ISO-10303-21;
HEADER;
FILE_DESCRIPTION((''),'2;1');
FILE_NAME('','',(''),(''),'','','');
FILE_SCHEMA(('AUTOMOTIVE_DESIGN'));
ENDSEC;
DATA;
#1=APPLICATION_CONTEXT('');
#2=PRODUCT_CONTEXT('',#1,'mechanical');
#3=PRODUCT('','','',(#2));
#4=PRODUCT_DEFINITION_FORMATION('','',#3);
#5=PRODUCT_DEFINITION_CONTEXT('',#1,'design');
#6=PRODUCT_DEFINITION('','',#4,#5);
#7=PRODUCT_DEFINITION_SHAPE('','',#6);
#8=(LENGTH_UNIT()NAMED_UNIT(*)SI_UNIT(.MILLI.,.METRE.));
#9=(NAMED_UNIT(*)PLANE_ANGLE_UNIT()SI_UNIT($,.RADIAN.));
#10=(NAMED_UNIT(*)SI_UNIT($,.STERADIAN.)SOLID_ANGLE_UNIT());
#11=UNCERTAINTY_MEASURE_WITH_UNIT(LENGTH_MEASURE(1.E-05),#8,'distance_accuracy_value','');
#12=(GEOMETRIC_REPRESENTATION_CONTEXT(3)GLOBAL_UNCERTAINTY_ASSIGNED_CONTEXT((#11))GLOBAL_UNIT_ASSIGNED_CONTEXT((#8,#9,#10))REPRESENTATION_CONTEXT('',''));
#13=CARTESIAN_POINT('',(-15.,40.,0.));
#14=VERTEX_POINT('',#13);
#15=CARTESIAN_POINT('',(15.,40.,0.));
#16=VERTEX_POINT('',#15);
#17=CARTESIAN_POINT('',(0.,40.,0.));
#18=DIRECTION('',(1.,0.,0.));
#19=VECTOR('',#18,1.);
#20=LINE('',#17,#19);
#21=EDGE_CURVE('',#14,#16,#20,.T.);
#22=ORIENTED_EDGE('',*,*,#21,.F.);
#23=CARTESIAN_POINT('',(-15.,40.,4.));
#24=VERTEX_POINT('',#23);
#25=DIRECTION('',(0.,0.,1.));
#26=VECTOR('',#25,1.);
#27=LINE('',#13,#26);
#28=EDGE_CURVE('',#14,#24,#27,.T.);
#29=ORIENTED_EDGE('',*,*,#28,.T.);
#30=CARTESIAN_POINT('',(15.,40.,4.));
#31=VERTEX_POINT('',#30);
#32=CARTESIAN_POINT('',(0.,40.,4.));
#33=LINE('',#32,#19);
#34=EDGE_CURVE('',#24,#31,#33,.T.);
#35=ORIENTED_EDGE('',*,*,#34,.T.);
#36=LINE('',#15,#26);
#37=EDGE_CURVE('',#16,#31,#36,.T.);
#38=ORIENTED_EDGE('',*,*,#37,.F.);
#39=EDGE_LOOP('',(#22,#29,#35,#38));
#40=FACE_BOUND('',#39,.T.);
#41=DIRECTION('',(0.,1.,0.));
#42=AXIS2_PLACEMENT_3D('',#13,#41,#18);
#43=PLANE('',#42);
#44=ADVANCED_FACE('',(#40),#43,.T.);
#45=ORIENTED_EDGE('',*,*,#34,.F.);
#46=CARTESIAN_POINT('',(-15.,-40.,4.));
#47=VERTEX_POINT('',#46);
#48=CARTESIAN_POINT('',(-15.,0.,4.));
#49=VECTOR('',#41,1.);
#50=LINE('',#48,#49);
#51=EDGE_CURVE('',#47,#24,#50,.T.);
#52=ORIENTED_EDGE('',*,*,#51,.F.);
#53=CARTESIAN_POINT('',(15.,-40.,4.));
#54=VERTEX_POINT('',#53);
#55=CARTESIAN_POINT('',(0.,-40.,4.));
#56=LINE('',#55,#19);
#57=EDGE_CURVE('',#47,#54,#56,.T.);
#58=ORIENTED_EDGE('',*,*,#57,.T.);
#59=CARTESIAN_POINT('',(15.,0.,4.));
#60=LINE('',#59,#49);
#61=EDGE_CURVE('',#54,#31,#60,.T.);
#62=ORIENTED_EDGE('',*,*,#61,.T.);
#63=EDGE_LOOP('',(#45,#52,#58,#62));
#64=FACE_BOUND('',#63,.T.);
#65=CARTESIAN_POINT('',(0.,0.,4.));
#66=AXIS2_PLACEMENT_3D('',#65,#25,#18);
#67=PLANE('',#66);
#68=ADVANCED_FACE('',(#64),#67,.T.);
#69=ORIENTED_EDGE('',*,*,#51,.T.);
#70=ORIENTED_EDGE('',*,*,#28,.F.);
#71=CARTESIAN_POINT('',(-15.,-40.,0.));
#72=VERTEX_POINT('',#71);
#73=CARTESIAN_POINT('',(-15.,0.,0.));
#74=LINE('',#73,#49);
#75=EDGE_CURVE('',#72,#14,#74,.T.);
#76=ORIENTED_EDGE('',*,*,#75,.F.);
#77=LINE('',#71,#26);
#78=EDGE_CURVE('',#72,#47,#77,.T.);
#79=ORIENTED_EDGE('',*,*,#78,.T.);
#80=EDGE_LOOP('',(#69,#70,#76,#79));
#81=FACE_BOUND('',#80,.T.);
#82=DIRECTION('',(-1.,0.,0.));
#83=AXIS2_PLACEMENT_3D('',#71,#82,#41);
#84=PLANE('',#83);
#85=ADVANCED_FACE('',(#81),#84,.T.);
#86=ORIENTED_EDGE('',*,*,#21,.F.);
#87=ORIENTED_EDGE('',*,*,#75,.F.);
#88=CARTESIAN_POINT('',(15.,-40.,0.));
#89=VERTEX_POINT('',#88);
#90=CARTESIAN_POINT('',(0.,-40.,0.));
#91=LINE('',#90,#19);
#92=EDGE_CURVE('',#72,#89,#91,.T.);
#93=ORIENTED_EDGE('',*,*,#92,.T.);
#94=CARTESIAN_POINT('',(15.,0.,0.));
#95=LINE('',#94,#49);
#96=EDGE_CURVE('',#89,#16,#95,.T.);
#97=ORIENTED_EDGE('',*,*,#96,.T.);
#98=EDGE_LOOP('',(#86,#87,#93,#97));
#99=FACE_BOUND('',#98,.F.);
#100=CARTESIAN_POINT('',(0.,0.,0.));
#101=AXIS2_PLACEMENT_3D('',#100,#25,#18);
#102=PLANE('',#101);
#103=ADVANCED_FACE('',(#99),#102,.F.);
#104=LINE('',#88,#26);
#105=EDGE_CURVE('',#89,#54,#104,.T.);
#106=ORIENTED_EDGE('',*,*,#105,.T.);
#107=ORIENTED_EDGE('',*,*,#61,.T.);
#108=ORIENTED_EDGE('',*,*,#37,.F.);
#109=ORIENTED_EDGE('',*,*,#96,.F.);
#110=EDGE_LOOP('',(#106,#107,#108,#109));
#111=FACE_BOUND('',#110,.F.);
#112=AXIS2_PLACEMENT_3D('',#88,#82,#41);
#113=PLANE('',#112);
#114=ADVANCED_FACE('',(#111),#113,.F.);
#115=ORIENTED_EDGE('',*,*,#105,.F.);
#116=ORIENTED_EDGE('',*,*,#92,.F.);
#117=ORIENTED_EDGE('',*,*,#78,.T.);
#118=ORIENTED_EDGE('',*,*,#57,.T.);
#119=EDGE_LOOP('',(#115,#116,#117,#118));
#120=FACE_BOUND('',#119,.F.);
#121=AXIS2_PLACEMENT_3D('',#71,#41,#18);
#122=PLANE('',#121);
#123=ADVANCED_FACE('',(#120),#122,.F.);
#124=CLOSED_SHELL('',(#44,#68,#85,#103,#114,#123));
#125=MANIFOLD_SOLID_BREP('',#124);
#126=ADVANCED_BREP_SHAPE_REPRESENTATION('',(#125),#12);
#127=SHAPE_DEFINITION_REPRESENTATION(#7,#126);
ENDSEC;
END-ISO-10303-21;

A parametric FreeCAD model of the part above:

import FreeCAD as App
import Part
import Sketcher
Q = App.Units.Quantity

doc = App.newDocument("Part")
body = doc.addObject("PartDesign::Body", "Body")

# Sketch on XY plane
sketch1 = body.newObject("Sketcher::SketchObject", "Sketch")
sketch1.AttachmentSupport = (doc.getObject("XY_Plane"), [""])
sketch1.MapMode = "FlatFace"
sketch1.addGeometry([
    Part.LineSegment(App.Vector(-15, 40, 0), App.Vector(-15, -40, 0)),
    Part.LineSegment(App.Vector(-15, -40, 0), App.Vector(15, -40, 0)),
    Part.LineSegment(App.Vector(15, -40, 0), App.Vector(15, 40, 0)),
    Part.LineSegment(App.Vector(15, 40, 0), App.Vector(-15, 40, 0)),
], False)
sketch1.addConstraint([
    Sketcher.Constraint("Coincident", 0, 2, 1, 1),
    Sketcher.Constraint("Coincident", 1, 2, 2, 1),
    Sketcher.Constraint("Coincident", 2, 2, 3, 1),
    Sketcher.Constraint("Coincident", 3, 2, 0, 1),
    Sketcher.Constraint("Vertical", 0),
    Sketcher.Constraint("Horizontal", 1),
    Sketcher.Constraint("Vertical", 2),
    Sketcher.Constraint("Horizontal", 3),
    Sketcher.Constraint("Symmetric", 0, 2, 2, 2, -1, 1),
    Sketcher.Constraint("DistanceX", 1, 1, 1, 2, Q("30 mm")),
    Sketcher.Constraint("DistanceY", 0, 2, 0, 1, Q("80 mm")),
])
pad1 = body.newObject("PartDesign::Pad", "Pad")
pad1.Profile = sketch1
pad1.Length = 4

doc.recompute()
